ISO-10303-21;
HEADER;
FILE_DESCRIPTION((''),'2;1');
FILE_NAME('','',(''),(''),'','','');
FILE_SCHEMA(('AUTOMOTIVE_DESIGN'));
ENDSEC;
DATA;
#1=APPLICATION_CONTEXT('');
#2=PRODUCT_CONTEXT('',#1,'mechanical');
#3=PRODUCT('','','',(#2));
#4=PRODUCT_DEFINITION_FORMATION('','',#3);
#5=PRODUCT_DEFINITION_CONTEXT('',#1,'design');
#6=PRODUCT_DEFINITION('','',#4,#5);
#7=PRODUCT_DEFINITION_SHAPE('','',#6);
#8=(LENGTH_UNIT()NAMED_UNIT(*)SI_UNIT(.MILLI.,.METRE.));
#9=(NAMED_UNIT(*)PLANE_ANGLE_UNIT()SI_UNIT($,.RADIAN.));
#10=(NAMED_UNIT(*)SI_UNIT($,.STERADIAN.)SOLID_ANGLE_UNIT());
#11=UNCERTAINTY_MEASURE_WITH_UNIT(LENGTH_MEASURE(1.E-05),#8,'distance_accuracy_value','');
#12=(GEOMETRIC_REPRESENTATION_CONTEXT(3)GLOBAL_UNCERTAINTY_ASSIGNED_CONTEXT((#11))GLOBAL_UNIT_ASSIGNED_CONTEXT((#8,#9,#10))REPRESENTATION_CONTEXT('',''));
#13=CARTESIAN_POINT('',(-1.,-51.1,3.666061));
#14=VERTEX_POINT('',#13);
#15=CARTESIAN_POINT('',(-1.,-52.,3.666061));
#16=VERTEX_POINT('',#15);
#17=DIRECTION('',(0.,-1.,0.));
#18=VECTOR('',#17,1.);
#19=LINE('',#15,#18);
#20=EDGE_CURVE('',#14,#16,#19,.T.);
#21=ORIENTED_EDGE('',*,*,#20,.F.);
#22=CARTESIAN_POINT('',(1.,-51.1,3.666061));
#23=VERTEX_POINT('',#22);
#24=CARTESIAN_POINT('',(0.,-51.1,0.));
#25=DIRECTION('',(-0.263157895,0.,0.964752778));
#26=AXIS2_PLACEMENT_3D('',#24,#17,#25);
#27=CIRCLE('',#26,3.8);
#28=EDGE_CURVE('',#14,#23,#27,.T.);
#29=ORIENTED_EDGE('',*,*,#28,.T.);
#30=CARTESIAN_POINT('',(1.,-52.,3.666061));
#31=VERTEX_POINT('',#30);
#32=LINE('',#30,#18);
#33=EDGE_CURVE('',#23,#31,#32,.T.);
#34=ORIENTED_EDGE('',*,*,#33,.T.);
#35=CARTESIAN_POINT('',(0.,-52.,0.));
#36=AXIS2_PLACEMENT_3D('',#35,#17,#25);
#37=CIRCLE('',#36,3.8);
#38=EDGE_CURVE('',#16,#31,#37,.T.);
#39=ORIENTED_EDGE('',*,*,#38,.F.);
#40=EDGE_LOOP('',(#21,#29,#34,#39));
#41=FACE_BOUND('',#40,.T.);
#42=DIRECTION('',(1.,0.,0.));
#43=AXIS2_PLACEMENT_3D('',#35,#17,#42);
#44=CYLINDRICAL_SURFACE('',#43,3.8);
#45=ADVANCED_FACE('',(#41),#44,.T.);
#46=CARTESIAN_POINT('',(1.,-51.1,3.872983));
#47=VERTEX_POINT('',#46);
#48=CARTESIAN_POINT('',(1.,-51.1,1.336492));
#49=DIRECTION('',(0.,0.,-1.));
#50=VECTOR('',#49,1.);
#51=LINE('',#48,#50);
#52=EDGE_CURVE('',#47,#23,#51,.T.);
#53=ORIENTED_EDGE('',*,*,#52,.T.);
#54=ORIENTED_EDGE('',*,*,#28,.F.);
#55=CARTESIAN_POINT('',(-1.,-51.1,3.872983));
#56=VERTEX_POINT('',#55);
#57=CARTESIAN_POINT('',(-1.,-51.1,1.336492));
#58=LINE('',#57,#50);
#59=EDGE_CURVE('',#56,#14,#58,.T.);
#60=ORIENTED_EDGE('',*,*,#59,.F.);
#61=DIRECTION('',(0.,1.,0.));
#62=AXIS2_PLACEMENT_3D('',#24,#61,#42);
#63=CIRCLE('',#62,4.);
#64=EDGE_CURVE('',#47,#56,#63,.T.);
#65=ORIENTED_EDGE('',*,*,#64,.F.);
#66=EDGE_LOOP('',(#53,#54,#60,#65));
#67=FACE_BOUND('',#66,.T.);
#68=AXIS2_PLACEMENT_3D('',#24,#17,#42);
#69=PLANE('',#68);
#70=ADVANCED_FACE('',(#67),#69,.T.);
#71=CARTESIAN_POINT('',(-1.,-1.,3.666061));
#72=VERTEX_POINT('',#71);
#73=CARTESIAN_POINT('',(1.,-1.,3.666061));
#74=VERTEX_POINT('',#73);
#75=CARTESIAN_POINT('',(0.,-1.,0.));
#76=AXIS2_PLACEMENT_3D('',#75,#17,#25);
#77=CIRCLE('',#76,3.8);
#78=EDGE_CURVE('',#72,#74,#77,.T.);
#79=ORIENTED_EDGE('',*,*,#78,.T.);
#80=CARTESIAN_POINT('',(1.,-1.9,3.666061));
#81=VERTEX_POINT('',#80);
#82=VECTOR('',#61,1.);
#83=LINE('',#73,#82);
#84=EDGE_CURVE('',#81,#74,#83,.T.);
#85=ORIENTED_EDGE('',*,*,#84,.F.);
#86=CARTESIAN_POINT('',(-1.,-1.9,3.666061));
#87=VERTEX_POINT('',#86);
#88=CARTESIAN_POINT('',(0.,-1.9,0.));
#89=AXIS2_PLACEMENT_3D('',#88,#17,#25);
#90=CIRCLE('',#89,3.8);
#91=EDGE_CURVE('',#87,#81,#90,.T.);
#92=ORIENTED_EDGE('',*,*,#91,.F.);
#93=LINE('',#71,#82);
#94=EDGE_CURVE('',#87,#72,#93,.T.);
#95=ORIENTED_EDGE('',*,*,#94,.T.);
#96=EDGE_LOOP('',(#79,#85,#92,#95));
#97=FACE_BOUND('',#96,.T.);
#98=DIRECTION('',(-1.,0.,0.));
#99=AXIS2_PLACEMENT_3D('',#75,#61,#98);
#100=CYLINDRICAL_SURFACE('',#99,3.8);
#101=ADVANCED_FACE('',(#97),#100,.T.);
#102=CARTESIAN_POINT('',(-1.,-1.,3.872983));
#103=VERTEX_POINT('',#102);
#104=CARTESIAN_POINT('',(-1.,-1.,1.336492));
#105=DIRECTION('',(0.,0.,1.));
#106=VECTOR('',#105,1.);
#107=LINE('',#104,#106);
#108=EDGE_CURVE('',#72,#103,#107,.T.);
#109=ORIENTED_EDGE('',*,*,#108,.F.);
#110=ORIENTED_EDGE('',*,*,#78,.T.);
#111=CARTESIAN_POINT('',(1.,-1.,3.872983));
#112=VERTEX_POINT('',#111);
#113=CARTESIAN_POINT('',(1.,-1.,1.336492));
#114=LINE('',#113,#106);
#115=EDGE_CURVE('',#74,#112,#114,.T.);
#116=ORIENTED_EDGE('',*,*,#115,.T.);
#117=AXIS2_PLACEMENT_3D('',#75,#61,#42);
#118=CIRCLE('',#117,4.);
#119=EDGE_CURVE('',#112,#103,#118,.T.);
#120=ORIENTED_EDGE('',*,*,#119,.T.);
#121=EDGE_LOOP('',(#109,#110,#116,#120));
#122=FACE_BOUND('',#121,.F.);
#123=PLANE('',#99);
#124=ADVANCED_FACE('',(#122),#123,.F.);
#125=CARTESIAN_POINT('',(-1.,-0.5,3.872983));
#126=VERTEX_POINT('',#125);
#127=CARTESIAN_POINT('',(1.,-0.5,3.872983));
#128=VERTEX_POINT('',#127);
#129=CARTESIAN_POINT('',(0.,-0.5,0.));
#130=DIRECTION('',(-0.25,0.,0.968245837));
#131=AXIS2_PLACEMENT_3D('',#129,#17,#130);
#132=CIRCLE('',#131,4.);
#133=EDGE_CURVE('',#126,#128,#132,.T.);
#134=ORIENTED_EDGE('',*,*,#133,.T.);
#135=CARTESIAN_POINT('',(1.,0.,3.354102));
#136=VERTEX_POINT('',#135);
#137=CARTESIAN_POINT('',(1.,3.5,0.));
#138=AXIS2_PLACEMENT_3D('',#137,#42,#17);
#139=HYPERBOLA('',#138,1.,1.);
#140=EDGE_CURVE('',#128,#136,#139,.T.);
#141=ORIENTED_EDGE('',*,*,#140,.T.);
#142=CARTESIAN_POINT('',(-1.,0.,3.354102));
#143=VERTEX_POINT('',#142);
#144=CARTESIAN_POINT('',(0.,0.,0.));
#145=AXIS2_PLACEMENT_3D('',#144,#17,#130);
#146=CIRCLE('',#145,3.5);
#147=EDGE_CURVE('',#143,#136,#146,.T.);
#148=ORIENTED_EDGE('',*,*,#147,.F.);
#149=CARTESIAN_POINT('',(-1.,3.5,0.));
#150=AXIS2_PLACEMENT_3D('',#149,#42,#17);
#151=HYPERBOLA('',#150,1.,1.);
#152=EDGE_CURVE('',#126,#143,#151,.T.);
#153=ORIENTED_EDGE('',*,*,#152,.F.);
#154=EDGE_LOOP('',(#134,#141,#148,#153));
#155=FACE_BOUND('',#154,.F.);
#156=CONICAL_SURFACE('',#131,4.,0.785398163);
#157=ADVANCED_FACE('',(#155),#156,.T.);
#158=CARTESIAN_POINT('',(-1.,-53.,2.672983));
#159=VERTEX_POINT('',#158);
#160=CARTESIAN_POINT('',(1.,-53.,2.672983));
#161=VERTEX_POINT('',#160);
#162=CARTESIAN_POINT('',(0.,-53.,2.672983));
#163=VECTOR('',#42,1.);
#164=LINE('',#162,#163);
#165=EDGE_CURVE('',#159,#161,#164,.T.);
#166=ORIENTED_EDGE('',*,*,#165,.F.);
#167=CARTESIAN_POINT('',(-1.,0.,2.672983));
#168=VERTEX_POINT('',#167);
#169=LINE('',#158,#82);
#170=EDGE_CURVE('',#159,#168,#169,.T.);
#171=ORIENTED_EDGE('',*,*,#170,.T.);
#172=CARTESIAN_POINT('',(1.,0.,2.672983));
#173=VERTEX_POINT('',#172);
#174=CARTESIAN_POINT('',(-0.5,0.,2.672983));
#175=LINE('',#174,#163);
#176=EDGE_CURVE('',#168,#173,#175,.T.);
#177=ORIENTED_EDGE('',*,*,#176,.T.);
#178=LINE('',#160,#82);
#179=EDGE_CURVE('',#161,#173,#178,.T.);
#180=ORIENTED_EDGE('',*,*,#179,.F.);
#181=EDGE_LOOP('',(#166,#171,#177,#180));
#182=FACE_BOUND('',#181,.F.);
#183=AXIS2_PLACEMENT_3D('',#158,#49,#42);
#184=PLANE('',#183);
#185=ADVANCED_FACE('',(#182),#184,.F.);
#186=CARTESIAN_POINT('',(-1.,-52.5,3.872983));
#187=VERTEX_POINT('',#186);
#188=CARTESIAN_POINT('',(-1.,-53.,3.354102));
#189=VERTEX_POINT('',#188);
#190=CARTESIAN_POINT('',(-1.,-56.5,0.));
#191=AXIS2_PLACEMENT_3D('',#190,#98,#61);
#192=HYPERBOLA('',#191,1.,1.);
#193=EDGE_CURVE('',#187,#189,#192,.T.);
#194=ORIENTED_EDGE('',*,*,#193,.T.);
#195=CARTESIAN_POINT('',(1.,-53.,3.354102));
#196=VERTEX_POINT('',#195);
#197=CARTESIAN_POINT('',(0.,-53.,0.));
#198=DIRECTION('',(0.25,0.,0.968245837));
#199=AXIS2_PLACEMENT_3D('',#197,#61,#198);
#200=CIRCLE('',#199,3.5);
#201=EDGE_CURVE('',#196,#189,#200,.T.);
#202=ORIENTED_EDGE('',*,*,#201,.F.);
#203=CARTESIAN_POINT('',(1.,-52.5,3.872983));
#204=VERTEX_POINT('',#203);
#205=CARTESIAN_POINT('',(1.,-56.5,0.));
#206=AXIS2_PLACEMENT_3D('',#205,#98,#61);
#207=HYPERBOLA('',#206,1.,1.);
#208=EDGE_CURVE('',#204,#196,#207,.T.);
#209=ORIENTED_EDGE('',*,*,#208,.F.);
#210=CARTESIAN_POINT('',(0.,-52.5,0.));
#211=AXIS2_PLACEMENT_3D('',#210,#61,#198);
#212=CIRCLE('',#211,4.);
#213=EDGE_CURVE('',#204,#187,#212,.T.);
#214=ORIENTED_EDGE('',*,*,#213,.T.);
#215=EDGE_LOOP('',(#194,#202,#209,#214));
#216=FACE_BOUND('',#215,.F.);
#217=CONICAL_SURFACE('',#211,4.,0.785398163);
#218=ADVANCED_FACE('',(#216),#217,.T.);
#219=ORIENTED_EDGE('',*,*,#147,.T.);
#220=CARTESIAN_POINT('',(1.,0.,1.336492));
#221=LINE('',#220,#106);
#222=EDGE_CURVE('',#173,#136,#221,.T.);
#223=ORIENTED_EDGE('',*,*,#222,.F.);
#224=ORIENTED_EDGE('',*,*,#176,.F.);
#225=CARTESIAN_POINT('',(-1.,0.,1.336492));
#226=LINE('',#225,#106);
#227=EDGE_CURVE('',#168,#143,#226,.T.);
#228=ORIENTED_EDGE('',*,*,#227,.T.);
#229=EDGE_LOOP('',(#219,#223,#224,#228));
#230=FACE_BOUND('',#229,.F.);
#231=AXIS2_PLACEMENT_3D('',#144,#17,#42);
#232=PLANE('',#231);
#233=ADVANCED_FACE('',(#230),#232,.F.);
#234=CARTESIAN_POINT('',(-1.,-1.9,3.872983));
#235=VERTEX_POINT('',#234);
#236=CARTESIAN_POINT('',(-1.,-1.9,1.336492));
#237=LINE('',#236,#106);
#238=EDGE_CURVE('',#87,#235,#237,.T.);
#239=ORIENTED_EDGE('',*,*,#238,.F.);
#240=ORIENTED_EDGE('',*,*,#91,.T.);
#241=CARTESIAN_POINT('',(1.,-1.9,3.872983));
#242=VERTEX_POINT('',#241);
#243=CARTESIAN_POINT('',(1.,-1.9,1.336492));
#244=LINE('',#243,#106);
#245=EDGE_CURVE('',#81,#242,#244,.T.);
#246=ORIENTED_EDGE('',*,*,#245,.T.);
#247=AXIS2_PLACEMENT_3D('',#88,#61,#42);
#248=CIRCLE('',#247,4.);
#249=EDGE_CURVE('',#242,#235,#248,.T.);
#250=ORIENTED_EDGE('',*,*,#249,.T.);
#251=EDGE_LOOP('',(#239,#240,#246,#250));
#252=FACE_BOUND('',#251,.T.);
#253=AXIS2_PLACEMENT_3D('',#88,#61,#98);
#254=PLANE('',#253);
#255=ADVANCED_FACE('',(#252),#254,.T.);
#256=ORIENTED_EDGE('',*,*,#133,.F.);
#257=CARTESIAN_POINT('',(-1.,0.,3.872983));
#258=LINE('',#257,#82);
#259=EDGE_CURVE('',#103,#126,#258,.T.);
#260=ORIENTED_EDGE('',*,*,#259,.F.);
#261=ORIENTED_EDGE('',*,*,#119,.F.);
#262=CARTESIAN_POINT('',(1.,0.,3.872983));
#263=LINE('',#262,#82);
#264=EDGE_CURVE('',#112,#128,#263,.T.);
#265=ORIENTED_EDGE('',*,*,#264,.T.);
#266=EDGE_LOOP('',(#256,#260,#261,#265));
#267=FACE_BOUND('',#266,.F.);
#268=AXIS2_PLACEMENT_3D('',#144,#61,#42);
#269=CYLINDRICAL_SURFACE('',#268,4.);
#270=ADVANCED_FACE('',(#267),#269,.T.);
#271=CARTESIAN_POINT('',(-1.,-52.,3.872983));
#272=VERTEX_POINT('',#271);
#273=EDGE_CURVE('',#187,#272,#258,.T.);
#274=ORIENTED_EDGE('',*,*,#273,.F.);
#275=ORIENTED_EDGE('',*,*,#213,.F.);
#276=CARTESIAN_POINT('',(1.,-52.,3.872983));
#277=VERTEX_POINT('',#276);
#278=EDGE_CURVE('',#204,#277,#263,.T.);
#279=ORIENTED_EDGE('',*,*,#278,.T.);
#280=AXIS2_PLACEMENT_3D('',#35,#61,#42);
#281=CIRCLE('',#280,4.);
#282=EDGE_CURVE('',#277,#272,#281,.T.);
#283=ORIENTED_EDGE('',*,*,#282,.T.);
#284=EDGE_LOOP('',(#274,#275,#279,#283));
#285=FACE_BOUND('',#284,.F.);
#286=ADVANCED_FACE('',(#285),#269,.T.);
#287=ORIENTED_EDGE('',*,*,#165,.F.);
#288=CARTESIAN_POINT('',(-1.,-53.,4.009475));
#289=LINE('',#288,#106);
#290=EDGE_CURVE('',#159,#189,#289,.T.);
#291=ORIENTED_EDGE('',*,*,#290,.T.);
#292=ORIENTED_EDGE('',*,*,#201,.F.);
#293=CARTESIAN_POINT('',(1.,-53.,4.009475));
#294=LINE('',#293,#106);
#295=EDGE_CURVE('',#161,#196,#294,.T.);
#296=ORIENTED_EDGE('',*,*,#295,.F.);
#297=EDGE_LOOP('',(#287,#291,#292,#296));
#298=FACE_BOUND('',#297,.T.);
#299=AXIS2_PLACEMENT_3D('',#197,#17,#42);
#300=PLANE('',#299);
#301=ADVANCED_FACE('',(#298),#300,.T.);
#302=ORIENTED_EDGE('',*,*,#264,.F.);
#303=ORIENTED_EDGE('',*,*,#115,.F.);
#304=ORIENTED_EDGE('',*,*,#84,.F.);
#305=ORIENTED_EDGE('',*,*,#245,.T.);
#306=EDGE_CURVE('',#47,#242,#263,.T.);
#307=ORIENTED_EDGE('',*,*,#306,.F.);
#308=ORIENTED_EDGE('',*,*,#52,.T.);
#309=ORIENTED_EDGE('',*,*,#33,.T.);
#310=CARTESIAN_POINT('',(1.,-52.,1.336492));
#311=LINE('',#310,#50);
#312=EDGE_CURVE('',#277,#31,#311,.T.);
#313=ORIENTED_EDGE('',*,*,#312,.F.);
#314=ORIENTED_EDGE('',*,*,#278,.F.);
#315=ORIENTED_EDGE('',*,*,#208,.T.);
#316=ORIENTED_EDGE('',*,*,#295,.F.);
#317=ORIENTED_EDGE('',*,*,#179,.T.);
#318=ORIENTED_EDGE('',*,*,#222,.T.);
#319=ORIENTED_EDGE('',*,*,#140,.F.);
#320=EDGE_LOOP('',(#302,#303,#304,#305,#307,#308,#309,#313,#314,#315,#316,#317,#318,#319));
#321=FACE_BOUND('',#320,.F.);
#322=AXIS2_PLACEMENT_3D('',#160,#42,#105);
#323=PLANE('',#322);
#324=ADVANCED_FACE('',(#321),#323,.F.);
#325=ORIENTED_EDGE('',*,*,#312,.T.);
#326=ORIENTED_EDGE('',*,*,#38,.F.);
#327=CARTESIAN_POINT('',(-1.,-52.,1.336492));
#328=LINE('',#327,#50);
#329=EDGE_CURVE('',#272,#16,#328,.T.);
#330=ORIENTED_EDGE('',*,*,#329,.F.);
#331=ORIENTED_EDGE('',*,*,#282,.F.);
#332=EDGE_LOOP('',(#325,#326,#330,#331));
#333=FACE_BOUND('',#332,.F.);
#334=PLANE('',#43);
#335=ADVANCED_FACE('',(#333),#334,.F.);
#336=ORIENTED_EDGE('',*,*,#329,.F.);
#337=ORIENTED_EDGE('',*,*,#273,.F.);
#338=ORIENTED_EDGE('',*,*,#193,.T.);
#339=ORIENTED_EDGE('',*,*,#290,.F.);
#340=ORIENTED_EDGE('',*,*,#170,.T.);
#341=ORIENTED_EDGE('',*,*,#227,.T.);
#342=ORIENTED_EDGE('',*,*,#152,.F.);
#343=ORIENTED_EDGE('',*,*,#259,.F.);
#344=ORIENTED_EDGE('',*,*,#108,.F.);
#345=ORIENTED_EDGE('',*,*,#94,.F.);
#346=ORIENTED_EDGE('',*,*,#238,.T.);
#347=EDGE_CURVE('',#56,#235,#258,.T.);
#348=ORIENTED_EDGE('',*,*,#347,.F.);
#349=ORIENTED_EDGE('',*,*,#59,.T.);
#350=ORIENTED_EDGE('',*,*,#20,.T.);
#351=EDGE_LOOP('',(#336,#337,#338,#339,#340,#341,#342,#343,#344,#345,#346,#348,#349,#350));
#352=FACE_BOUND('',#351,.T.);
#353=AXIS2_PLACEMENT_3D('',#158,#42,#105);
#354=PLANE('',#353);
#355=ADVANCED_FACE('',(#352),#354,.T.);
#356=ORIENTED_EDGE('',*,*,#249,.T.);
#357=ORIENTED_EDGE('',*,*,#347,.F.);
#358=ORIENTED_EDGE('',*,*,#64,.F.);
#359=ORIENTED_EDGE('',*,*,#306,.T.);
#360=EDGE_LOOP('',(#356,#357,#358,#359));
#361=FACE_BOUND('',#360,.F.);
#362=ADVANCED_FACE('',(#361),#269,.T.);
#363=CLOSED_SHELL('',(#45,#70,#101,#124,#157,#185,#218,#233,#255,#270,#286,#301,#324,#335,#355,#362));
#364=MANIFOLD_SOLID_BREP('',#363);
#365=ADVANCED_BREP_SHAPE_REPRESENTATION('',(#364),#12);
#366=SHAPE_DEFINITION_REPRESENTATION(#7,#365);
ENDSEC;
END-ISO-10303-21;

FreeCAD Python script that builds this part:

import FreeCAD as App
import Part
import Sketcher

V = App.Vector


def edges_at(feature, points):
    """Names of the edges that pass closest to the given points."""
    edges = feature.Shape.Edges
    near = lambda p: min(range(len(edges)), key=lambda i: edges[i].distToShape(Part.Vertex(*p))[0])
    return sorted({f"Edge{near(p) + 1}" for p in points})


def add_polygon(sketch, points):
    """Adds a closed chain of lines whose ends are joined by coincident constraints."""
    first, n = sketch.GeometryCount, len(points)
    for a, b in zip(points, points[1:] + points[:1]):
        sketch.addGeometry(Part.LineSegment(App.Vector(*a, 0), App.Vector(*b, 0)), False)
    for i in range(n):
        sketch.addConstraint(Sketcher.Constraint("Coincident", first + i, 2, first + (i + 1) % n, 1))

doc = App.newDocument("Part")
body = doc.addObject("PartDesign::Body", "Body")

# Sketch on XZ plane
sketch1 = doc.addObject("Sketcher::SketchObject", "Sketch")
body.addObject(sketch1)
sketch1.AttachmentSupport = (doc.XZ_Plane, [""])
sketch1.MapMode = "FlatFace"
sketch1.addGeometry(Part.Circle(V(0, 0, 0), V(0, 0, 1), 4), False)
sketch1.addConstraint(Sketcher.Constraint("Coincident", 0, 3, -1, 1))
sketch1.addConstraint(Sketcher.Constraint("Diameter", 0, 8.0))
pad1 = doc.addObject("PartDesign::Pad", "Pad")
body.addObject(pad1)
pad1.Profile = sketch1
pad1.Length = 53

# Sketch on XZ plane
sketch2 = doc.addObject("Sketcher::SketchObject", "Sketch001")
body.addObject(sketch2)
sketch2.AttachmentSupport = (doc.XZ_Plane, [""])
sketch2.MapMode = "FlatFace"
sketch2.AttachmentOffset = App.Placement(V(0, 0, 53), App.Rotation())
add_polygon(sketch2, [(-1, 5.3), (-1, 2.7), (1, 2.7), (1, 5.3)])  # lines 0-3
sketch2.addConstraint(Sketcher.Constraint("Vertical", 0))
sketch2.addConstraint(Sketcher.Constraint("Horizontal", 1))
sketch2.addConstraint(Sketcher.Constraint("Vertical", 2))
sketch2.addConstraint(Sketcher.Constraint("Horizontal", 3))
sketch2.addConstraint(Sketcher.Constraint("DistanceX", 1, 1, 1, 2, 2.0))
sketch2.addConstraint(Sketcher.Constraint("DistanceX", 0, 2, -1, 1, 1.0))
sketch2.addConstraint(Sketcher.Constraint("DistanceY", 0, 2, 0, 1, 2.672983))
sketch2.addConstraint(Sketcher.Constraint("DistanceY", -1, 1, 0, 2, 2.672983))
pocket1 = doc.addObject("PartDesign::Pocket", "Pocket")
body.addObject(pocket1)
pocket1.Profile = sketch2
pocket1.Type = "ThroughAll"
doc.recompute()

chamfer = doc.addObject("PartDesign::Chamfer", "Chamfer")
body.addObject(chamfer)
chamfer.Base = (pocket1, edges_at(pocket1, [(0, -53, -4), (0, 0, -4)]))
chamfer.Size = 0.5

# Sketch on XZ plane
sketch3 = doc.addObject("Sketcher::SketchObject", "Sketch002")
body.addObject(sketch3)
sketch3.AttachmentSupport = (doc.XZ_Plane, [""])
sketch3.MapMode = "FlatFace"
sketch3.AttachmentOffset = App.Placement(V(0, 0, 52), App.Rotation())
sketch3.addGeometry(Part.Circle(V(0, 0, 0), V(0, 0, 1), 5.1), False)
sketch3.addGeometry(Part.Circle(V(0, 0, 0), V(0, 0, 1), 3.8), False)
sketch3.addConstraint(Sketcher.Constraint("Coincident", 0, 3, -1, 1))
sketch3.addConstraint(Sketcher.Constraint("Coincident", 1, 3, -1, 1))
sketch3.addConstraint(Sketcher.Constraint("Diameter", 1, 7.6))
sketch3.addConstraint(Sketcher.Constraint("Diameter", 0, 10.256487))
pocket2 = doc.addObject("PartDesign::Pocket", "Pocket001")
body.addObject(pocket2)
pocket2.Profile = sketch3
pocket2.Length = 0.9

# Sketch on XZ plane
sketch4 = doc.addObject("Sketcher::SketchObject", "Sketch003")
body.addObject(sketch4)
sketch4.AttachmentSupport = (doc.XZ_Plane, [""])
sketch4.MapMode = "FlatFace"
sketch4.AttachmentOffset = App.Placement(V(0, 0, 1), App.Rotation())
sketch4.addGeometry(Part.Circle(V(0, 0, 0), V(0, 0, 1), 7.9), False)
sketch4.addGeometry(Part.Circle(V(0, 0, 0), V(0, 0, 1), 3.8), False)
sketch4.addConstraint(Sketcher.Constraint("Coincident", 0, 3, -1, 1))
sketch4.addConstraint(Sketcher.Constraint("Coincident", 1, 3, -1, 1))
sketch4.addConstraint(Sketcher.Constraint("Diameter", 1, 7.6))
sketch4.addConstraint(Sketcher.Constraint("Diameter", 0, 15.888065))
pocket3 = doc.addObject("PartDesign::Pocket", "Pocket002")
body.addObject(pocket3)
pocket3.Profile = sketch4
pocket3.Length = 0.9
pocket3.Reversed = True

doc.recompute()
